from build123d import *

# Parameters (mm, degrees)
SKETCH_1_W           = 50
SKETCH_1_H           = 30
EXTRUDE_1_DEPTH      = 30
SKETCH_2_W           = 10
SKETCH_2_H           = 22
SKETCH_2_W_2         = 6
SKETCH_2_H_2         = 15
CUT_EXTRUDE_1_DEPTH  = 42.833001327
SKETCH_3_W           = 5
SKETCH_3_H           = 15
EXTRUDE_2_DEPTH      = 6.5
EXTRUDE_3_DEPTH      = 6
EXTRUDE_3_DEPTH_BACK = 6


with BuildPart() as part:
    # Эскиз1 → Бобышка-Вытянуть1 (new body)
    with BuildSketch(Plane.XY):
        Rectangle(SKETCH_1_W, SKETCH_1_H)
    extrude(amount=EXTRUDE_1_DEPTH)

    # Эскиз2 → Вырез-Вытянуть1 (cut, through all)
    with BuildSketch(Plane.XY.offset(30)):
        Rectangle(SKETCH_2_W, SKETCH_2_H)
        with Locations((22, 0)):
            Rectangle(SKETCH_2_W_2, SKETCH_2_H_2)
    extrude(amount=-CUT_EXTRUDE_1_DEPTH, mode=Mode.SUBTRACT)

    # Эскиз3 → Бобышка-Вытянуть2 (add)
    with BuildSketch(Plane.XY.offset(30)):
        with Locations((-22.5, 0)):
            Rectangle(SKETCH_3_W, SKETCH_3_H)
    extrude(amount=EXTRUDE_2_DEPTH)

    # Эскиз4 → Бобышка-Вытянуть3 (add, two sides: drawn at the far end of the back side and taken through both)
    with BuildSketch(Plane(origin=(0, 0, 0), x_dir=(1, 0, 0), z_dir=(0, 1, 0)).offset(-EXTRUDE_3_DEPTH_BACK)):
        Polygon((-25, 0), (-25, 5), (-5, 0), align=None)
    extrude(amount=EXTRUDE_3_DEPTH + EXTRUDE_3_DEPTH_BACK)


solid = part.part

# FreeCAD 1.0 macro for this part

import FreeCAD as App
import Part
import Sketcher
from FreeCAD import Vector


def add_polygon(sketch, points):
    """Adds a closed chain of lines whose ends are joined by coincident constraints."""
    first, n = sketch.GeometryCount, len(points)
    for a, b in zip(points, points[1:] + points[:1]):
        sketch.addGeometry(Part.LineSegment(App.Vector(*a, 0), App.Vector(*b, 0)), False)
    for i in range(n):
        sketch.addConstraint(Sketcher.Constraint("Coincident", first + i, 2, first + (i + 1) % n, 1))

doc = App.newDocument("Part")
body = doc.addObject("PartDesign::Body", "Body")

# Sketch on XY plane
sketch1 = body.newObject("Sketcher::SketchObject", "Sketch")
sketch1.AttachmentSupport = (doc.getObject("XY_Plane"), [""])
sketch1.MapMode = "FlatFace"
add_polygon(sketch1, [(-25, 15), (-25, -15), (25, -15), (25, 15)])  # lines 0-3
sketch1.addConstraint([
    Sketcher.Constraint("Vertical", 0),
    Sketcher.Constraint("Horizontal", 1),
    Sketcher.Constraint("Vertical", 2),
    Sketcher.Constraint("Horizontal", 3),
    Sketcher.Constraint("Symmetric", 0, 2, 2, 2, -1, 1),
    Sketcher.Constraint("DistanceX", 1, 1, 1, 2, 50.0),
    Sketcher.Constraint("DistanceY", 0, 2, 0, 1, 30.0),
])
pad1 = body.newObject("PartDesign::Pad", "Pad")
pad1.Profile = sketch1
pad1.Length = 30

# Sketch on XY plane
sketch2 = body.newObject("Sketcher::SketchObject", "Sketch001")
sketch2.AttachmentSupport = (doc.getObject("XY_Plane"), [""])
sketch2.MapMode = "FlatFace"
sketch2.AttachmentOffset = App.Placement(Vector(0, 0, 30), App.Rotation())
add_polygon(sketch2, [(-5, 11), (-5, -11), (5, -11), (5, 11)])  # lines 0-3
add_polygon(sketch2, [(19, 7.5), (19, -7.5), (25, -7.5), (25, 7.5)])  # lines 4-7
sketch2.addConstraint([
    Sketcher.Constraint("Vertical", 0),
    Sketcher.Constraint("Horizontal", 1),
    Sketcher.Constraint("Vertical", 2),
    Sketcher.Constraint("Horizontal", 3),
    Sketcher.Constraint("Vertical", 4),
    Sketcher.Constraint("Horizontal", 5),
    Sketcher.Constraint("Vertical", 6),
    Sketcher.Constraint("Horizontal", 7),
    Sketcher.Constraint("Symmetric", 0, 2, 2, 2, -1, 1),
    Sketcher.Constraint("DistanceX", 1, 1, 1, 2, 10.0),
    Sketcher.Constraint("DistanceX", 5, 1, 5, 2, 6.0),
    Sketcher.Constraint("DistanceY", 0, 2, 0, 1, 22.0),
    Sketcher.Constraint("DistanceY", 4, 2, 4, 1, 15.0),
    Sketcher.Constraint("DistanceX", -1, 1, 4, 2, 19.0),
    Sketcher.Constraint("DistanceY", 4, 2, -1, 1, 7.5),
])
pocket1 = body.newObject("PartDesign::Pocket", "Pocket")
pocket1.Profile = sketch2
pocket1.Type = "ThroughAll"

# Sketch on XY plane
sketch3 = body.newObject("Sketcher::SketchObject", "Sketch002")
sketch3.AttachmentSupport = (doc.getObject("XY_Plane"), [""])
sketch3.MapMode = "FlatFace"
sketch3.AttachmentOffset = App.Placement(Vector(0, 0, 30), App.Rotation())
add_polygon(sketch3, [(-25, 7.5), (-25, -7.5), (-20, -7.5), (-20, 7.5)])  # lines 0-3
sketch3.addConstraint([
    Sketcher.Constraint("Vertical", 0),
    Sketcher.Constraint("Horizontal", 1),
    Sketcher.Constraint("Vertical", 2),
    Sketcher.Constraint("Horizontal", 3),
    Sketcher.Constraint("DistanceX", 1, 1, 1, 2, 5.0),
    Sketcher.Constraint("DistanceY", 0, 2, 0, 1, 15.0),
    Sketcher.Constraint("DistanceX", 0, 2, -1, 1, 25.0),
    Sketcher.Constraint("DistanceY", 0, 2, -1, 1, 7.5),
])
pad2 = body.newObject("PartDesign::Pad", "Pad001")
pad2.Profile = sketch3
pad2.Length = 6.5

# Sketch on XZ plane
sketch4 = body.newObject("Sketcher::SketchObject", "Sketch003")
sketch4.AttachmentSupport = (doc.getObject("XZ_Plane"), [""])
sketch4.MapMode = "FlatFace"
add_polygon(sketch4, [(-25, -5), (-25, 0), (-5, 0)])  # lines 0-2
sketch4.addConstraint([
    Sketcher.Constraint("Vertical", 0),
    Sketcher.Constraint("Horizontal", 1),
    Sketcher.Constraint("PointOnObject", 0, 2, -1),
    Sketcher.Constraint("DistanceX", 1, 1, 1, 2, 20.0),
    Sketcher.Constraint("DistanceY", 0, 1, 0, 2, 5.0),
    Sketcher.Constraint("DistanceX", 0, 2, -1, 1, 25.0),
])
pad3 = body.newObject("PartDesign::Pad", "Pad002")
pad3.Profile = sketch4
pad3.Type = "TwoLengths"
pad3.Length = 6
pad3.Length2 = 6
pad3.Reversed = True

doc.recompute()
